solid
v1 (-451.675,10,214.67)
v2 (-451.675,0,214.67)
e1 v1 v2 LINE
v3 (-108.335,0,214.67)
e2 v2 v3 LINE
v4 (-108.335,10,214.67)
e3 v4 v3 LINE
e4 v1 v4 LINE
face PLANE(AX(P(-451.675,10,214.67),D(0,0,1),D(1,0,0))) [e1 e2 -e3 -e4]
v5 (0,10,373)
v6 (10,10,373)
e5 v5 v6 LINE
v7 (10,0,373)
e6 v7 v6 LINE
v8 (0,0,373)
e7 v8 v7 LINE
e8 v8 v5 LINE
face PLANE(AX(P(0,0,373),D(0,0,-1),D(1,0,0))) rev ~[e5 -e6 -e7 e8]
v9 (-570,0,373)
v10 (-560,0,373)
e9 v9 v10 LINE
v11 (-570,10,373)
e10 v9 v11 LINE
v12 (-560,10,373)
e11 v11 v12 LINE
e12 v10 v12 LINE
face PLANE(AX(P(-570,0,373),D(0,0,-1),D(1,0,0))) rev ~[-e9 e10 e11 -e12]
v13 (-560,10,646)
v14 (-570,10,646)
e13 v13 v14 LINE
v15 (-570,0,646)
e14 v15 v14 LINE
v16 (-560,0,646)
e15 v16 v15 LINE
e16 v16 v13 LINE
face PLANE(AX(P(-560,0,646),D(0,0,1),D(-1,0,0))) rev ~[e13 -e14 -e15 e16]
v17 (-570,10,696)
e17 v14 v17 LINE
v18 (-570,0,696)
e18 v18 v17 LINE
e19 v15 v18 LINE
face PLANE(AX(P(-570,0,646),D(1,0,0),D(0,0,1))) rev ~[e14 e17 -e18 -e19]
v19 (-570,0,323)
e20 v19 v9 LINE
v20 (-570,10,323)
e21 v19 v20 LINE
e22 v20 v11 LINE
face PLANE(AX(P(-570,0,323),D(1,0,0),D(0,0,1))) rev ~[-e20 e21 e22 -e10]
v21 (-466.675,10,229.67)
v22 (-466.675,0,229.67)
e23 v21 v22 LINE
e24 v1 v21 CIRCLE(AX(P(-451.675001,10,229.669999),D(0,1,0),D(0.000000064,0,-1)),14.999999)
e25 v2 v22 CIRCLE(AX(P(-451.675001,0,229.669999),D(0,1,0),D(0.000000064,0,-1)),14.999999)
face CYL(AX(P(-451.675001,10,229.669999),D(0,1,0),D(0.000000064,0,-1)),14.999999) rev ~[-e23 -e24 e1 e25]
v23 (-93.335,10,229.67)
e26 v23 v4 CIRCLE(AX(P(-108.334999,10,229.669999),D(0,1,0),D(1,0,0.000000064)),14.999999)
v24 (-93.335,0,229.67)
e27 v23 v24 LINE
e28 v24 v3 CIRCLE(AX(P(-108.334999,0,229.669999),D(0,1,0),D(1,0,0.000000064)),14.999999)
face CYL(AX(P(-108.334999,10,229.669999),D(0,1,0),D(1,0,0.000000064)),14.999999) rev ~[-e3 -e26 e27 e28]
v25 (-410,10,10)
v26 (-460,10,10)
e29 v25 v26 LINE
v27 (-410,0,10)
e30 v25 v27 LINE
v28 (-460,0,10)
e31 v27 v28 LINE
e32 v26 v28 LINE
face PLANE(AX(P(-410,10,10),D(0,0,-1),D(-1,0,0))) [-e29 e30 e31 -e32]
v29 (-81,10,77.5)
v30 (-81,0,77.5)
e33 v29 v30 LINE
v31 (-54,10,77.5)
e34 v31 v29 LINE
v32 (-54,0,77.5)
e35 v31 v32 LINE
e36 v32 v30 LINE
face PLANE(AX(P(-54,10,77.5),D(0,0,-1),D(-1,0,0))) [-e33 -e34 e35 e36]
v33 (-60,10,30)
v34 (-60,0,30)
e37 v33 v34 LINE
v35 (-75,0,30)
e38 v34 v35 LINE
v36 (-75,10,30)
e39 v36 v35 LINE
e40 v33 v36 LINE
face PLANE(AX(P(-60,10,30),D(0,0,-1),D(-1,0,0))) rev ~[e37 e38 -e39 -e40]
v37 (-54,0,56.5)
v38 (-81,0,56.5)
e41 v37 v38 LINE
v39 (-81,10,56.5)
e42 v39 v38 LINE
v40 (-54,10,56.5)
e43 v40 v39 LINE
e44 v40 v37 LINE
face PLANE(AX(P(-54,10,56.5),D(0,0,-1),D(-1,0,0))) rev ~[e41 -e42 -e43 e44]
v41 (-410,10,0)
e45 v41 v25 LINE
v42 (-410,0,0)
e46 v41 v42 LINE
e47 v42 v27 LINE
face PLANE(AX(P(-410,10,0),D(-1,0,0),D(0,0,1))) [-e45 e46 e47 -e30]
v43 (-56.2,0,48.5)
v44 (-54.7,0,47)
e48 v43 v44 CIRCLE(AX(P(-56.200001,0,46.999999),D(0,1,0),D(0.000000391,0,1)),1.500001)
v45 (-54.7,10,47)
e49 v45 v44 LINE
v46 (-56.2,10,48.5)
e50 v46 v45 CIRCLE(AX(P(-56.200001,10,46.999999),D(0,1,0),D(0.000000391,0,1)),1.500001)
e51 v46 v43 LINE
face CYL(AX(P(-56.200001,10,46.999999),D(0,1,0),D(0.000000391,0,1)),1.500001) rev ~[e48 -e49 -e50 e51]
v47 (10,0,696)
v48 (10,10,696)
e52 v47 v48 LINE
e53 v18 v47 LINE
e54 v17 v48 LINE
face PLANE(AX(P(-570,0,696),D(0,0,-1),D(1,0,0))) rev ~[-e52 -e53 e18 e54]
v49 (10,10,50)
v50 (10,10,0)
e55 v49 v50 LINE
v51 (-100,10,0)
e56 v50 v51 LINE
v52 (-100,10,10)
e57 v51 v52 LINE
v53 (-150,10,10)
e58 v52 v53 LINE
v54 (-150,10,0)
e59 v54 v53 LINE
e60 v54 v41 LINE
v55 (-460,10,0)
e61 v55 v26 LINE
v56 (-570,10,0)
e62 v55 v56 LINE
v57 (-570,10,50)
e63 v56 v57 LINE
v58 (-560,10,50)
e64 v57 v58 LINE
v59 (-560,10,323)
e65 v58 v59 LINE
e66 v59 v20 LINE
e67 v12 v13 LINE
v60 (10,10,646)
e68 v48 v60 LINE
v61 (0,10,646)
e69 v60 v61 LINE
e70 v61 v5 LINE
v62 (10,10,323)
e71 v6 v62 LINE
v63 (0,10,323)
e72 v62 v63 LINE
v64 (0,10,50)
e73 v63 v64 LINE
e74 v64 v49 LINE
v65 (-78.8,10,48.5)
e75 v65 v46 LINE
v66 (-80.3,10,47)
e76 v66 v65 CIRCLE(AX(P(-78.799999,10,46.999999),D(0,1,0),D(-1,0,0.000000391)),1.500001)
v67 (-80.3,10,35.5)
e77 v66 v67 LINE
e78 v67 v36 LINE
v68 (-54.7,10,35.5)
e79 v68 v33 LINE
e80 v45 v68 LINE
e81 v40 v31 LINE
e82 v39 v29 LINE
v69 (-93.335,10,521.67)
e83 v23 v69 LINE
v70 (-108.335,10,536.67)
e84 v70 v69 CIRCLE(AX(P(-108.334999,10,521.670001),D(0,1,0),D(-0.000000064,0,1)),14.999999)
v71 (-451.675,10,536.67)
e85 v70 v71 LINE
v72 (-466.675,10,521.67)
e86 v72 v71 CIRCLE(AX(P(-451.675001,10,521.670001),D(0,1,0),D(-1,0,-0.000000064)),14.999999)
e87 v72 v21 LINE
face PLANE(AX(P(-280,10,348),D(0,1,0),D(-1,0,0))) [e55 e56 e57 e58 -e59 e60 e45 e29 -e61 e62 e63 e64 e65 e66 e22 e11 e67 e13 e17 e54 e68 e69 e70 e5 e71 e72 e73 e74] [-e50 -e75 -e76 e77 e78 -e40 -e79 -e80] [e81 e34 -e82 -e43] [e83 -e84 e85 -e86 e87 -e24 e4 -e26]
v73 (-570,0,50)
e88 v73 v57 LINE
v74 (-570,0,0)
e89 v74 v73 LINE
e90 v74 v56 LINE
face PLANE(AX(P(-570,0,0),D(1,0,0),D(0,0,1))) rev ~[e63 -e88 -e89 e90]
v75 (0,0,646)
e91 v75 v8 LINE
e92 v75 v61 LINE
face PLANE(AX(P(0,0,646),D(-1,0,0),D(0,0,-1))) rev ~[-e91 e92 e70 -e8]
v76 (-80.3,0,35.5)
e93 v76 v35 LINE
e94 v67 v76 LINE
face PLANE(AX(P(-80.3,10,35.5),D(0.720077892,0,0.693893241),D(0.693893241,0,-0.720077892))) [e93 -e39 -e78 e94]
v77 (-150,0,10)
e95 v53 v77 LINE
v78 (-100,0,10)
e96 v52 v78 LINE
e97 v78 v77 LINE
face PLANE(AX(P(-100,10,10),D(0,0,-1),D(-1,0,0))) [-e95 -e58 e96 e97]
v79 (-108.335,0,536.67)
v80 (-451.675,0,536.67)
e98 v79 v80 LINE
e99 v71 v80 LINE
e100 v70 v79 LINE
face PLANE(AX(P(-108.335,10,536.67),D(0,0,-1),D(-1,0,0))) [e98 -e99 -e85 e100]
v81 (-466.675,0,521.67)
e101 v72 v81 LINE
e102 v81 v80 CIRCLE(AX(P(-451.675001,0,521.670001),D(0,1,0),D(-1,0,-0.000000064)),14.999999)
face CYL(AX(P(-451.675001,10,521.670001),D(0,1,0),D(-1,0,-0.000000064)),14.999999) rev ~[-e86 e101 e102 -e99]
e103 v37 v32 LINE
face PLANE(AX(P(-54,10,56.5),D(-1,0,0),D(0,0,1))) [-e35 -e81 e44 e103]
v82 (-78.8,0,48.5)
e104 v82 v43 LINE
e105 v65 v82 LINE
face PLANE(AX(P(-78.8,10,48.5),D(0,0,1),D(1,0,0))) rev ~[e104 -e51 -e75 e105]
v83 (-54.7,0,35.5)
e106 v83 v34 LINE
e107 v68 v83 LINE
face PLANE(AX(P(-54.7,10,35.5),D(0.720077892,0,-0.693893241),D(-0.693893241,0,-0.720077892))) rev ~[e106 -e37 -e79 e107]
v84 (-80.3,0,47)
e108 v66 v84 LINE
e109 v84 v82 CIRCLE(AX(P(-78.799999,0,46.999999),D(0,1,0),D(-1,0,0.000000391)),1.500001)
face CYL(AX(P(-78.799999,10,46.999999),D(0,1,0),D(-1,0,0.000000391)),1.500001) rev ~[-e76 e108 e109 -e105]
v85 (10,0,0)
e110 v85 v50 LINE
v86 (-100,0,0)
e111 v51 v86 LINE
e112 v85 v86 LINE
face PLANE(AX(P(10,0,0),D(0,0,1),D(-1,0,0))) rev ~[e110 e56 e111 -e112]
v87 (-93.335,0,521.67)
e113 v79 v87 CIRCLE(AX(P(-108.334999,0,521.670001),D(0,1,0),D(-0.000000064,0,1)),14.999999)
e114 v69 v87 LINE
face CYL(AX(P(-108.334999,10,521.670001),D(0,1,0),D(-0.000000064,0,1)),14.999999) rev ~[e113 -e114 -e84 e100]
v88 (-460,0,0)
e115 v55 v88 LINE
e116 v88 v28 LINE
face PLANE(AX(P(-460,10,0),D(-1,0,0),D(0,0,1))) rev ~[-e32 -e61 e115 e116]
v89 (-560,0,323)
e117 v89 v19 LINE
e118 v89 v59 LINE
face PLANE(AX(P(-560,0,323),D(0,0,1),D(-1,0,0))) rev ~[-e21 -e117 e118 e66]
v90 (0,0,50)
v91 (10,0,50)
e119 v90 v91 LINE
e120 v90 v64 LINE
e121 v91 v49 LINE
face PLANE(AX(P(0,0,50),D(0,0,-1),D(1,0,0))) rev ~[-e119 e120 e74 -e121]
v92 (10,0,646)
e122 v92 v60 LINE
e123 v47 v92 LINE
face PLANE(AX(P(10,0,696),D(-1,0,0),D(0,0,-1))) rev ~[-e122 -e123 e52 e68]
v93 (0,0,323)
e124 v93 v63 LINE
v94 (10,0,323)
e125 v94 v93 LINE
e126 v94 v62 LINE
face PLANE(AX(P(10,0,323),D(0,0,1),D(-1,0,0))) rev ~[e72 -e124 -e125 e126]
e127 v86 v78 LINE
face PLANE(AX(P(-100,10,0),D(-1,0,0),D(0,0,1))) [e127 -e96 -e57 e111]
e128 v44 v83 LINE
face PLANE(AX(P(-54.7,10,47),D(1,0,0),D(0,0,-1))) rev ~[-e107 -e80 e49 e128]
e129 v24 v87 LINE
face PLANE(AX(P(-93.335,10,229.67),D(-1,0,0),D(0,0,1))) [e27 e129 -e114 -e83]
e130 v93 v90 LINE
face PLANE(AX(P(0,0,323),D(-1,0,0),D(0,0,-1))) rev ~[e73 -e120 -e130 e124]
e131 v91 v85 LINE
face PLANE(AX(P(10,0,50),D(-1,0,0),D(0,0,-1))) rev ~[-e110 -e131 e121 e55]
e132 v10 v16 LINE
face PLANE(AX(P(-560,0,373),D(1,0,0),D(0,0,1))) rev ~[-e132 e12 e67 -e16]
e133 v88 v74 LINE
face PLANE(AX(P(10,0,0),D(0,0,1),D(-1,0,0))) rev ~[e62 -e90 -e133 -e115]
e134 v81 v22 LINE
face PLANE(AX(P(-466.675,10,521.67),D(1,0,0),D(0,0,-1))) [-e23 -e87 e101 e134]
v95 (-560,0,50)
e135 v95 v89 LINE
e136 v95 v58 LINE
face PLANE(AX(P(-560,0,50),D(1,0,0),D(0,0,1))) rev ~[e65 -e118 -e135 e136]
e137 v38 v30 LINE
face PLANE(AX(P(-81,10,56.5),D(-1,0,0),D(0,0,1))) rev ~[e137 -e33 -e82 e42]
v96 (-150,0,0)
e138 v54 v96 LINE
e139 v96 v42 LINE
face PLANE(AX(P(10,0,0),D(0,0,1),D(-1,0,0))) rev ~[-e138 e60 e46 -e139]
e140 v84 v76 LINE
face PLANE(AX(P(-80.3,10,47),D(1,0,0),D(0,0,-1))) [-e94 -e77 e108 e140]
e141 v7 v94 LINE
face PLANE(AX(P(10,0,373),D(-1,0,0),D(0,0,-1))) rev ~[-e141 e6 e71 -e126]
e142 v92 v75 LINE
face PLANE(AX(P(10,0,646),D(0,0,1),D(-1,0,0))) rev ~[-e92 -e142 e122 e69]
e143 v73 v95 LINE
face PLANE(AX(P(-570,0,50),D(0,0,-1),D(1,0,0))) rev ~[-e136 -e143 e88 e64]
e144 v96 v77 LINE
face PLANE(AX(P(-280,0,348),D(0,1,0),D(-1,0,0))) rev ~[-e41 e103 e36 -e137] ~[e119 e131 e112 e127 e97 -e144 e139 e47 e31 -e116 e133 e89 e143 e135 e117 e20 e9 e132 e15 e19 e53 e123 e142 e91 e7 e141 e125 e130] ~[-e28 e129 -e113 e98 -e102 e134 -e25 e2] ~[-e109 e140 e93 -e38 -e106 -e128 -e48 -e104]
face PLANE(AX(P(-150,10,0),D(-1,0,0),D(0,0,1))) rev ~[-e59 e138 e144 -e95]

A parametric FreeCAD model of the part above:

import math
import FreeCAD as App
import Part
import Sketcher

V = App.Vector
Q = App.Units.Quantity

doc = App.newDocument("Part")
body = doc.addObject("PartDesign::Body", "Body")

sketch1 = body.newObject("Sketcher::SketchObject", "Sketch")
sketch1.AttachmentSupport = (doc.getObject("XZ_Plane"), [""])
sketch1.MapMode = "FlatFace"
sketch1.addGeometry([
    Part.LineSegment(V(-570, 0, 0), V(-570, 50, 0)),
    Part.LineSegment(V(-570, 50, 0), V(-560, 50, 0)),
    Part.LineSegment(V(-560, 50, 0), V(-560, 323, 0)),
    Part.LineSegment(V(-560, 323, 0), V(-570, 323, 0)),
    Part.LineSegment(V(-570, 323, 0), V(-570, 373, 0)),
    Part.LineSegment(V(-570, 373, 0), V(-560, 373, 0)),
    Part.LineSegment(V(-560, 373, 0), V(-560, 646, 0)),
    Part.LineSegment(V(-560, 646, 0), V(-570, 646, 0)),
    Part.LineSegment(V(-570, 646, 0), V(-570, 696, 0)),
    Part.LineSegment(V(-570, 696, 0), V(10, 696, 0)),
    Part.LineSegment(V(10, 696, 0), V(10, 646, 0)),
    Part.LineSegment(V(10, 646, 0), V(0, 646, 0)),
    Part.LineSegment(V(0, 646, 0), V(0, 373, 0)),
    Part.LineSegment(V(0, 373, 0), V(10, 373, 0)),
    Part.LineSegment(V(10, 373, 0), V(10, 323, 0)),
    Part.LineSegment(V(10, 323, 0), V(0, 323, 0)),
    Part.LineSegment(V(0, 323, 0), V(0, 50, 0)),
    Part.LineSegment(V(0, 50, 0), V(10, 50, 0)),
    Part.LineSegment(V(10, 50, 0), V(10, 0, 0)),
    Part.LineSegment(V(10, 0, 0), V(-570, 0, 0)),
], False)
sketch1.addConstraint([
    Sketcher.Constraint("Coincident", 0, 2, 1, 1),
    Sketcher.Constraint("Coincident", 1, 2, 2, 1),
    Sketcher.Constraint("Coincident", 2, 2, 3, 1),
    Sketcher.Constraint("Coincident", 3, 2, 4, 1),
    Sketcher.Constraint("Coincident", 4, 2, 5, 1),
    Sketcher.Constraint("Coincident", 5, 2, 6, 1),
    Sketcher.Constraint("Coincident", 6, 2, 7, 1),
    Sketcher.Constraint("Coincident", 7, 2, 8, 1),
    Sketcher.Constraint("Coincident", 8, 2, 9, 1),
    Sketcher.Constraint("Coincident", 9, 2, 10, 1),
    Sketcher.Constraint("Coincident", 10, 2, 11, 1),
    Sketcher.Constraint("Coincident", 11, 2, 12, 1),
    Sketcher.Constraint("Coincident", 12, 2, 13, 1),
    Sketcher.Constraint("Coincident", 13, 2, 14, 1),
    Sketcher.Constraint("Coincident", 14, 2, 15, 1),
    Sketcher.Constraint("Coincident", 15, 2, 16, 1),
    Sketcher.Constraint("Coincident", 16, 2, 17, 1),
    Sketcher.Constraint("Coincident", 17, 2, 18, 1),
    Sketcher.Constraint("Coincident", 18, 2, 19, 1),
    Sketcher.Constraint("Coincident", 19, 2, 0, 1),
    Sketcher.Constraint("Vertical", 0),
    Sketcher.Constraint("Horizontal", 1),
    Sketcher.Constraint("Vertical", 2),
    Sketcher.Constraint("Horizontal", 3),
    Sketcher.Constraint("Vertical", 4),
    Sketcher.Constraint("Horizontal", 5),
    Sketcher.Constraint("Vertical", 6),
    Sketcher.Constraint("Horizontal", 7),
    Sketcher.Constraint("Vertical", 8),
    Sketcher.Constraint("Horizontal", 9),
    Sketcher.Constraint("Vertical", 10),
    Sketcher.Constraint("Horizontal", 11),
    Sketcher.Constraint("Vertical", 12),
    Sketcher.Constraint("Horizontal", 13),
    Sketcher.Constraint("Vertical", 14),
    Sketcher.Constraint("Horizontal", 15),
    Sketcher.Constraint("Vertical", 16),
    Sketcher.Constraint("Horizontal", 17),
    Sketcher.Constraint("Vertical", 18),
    Sketcher.Constraint("Horizontal", 19),
    Sketcher.Constraint("PointOnObject", 11, 2, -2),
    Sketcher.Constraint("PointOnObject", 15, 2, -2),
    Sketcher.Constraint("PointOnObject", 18, 2, -1),
    Sketcher.Constraint("Horizontal", 7, 2, 10, 2),
    Sketcher.Constraint("Horizontal", 5, 2, 12, 2),
    Sketcher.Constraint("Horizontal", 3, 2, 14, 2),
    Sketcher.Constraint("Horizontal", 1, 2, 16, 2),
    Sketcher.Constraint("Vertical", 0, 2, 3, 2),
    Sketcher.Constraint("Vertical", 2, 2, 5, 2),
    Sketcher.Constraint("Vertical", 4, 2, 7, 2),
    Sketcher.Constraint("Vertical", 10, 2, 13, 2),
    Sketcher.Constraint("Vertical", 14, 2, 17, 2),
    Sketcher.Constraint("Equal", 7, 11),
    Sketcher.Constraint("Equal", 0, 4),
    Sketcher.Constraint("Equal", 2, 6),
    Sketcher.Constraint("Equal", 4, 8),
    Sketcher.Constraint("DistanceX", 1, 1, 1, 2, Q("10 mm")),
    Sketcher.Constraint("DistanceX", 9, 1, 9, 2, Q("580 mm")),
    Sketcher.Constraint("DistanceY", 0, 1, 0, 2, Q("50 mm")),
    Sketcher.Constraint("DistanceY", 2, 1, 2, 2, Q("273 mm")),
])
pad1 = body.newObject("PartDesign::Pad", "Pad")
pad1.Profile = sketch1
pad1.Length = 10
pad1.Reversed = True

sketch2 = body.newObject("Sketcher::SketchObject", "Sketch001")
sketch2.AttachmentSupport = (doc.getObject("XZ_Plane"), [""])
sketch2.MapMode = "FlatFace"
sketch2.AttachmentOffset = App.Placement(V(0, 0, -10), App.Rotation())
sketch2.addGeometry([
    Part.LineSegment(V(-451.675, 536.67, 0), V(-108.335, 536.67, 0)),
    Part.ArcOfCircle(Part.Circle(V(-108.334999, 521.670001, 0), V(0, 0, 1), 14.999999), math.radians(-0.000004), math.radians(90.000004)),
    Part.LineSegment(V(-93.335, 521.67, 0), V(-93.335, 229.67, 0)),
    Part.ArcOfCircle(Part.Circle(V(-108.334999, 229.669999, 0), V(0, 0, 1), 14.999999), math.radians(-90.000004), math.radians(0.000004)),
    Part.LineSegment(V(-108.335, 214.67, 0), V(-451.675, 214.67, 0)),
    Part.ArcOfCircle(Part.Circle(V(-451.675001, 229.669999, 0), V(0, 0, 1), 14.999999), math.radians(179.999996), math.radians(270.000004)),
    Part.LineSegment(V(-466.675, 229.67, 0), V(-466.675, 521.67, 0)),
    Part.ArcOfCircle(Part.Circle(V(-451.675001, 521.670001, 0), V(0, 0, 1), 14.999999), math.radians(89.999996), math.radians(180.000004)),
    Part.LineSegment(V(-60, 30, 0), V(-75, 30, 0)),
    Part.LineSegment(V(-75, 30, 0), V(-80.3, 35.5, 0)),
    Part.LineSegment(V(-80.3, 35.5, 0), V(-80.3, 47, 0)),
    Part.ArcOfCircle(Part.Circle(V(-78.799999, 46.999999, 0), V(0, 0, 1), 1.500001), math.radians(90.000022), math.radians(179.999978)),
    Part.LineSegment(V(-78.8, 48.5, 0), V(-56.2, 48.5, 0)),
    Part.ArcOfCircle(Part.Circle(V(-56.200001, 46.999999, 0), V(0, 0, 1), 1.500001), math.radians(0.000022), math.radians(89.999978)),
    Part.LineSegment(V(-54.7, 47, 0), V(-54.7, 35.5, 0)),
    Part.LineSegment(V(-54.7, 35.5, 0), V(-60, 30, 0)),
    Part.LineSegment(V(-54, 77.5, 0), V(-54, 56.5, 0)),
    Part.LineSegment(V(-54, 56.5, 0), V(-81, 56.5, 0)),
    Part.LineSegment(V(-81, 56.5, 0), V(-81, 77.5, 0)),
    Part.LineSegment(V(-81, 77.5, 0), V(-54, 77.5, 0)),
    Part.LineSegment(V(-100, 10, 0), V(-100, 0, 0)),
    Part.LineSegment(V(-100, 0, 0), V(-150, 0, 0)),
    Part.LineSegment(V(-150, 0, 0), V(-150, 10, 0)),
    Part.LineSegment(V(-150, 10, 0), V(-100, 10, 0)),
    Part.LineSegment(V(-410, 10, 0), V(-410, 0, 0)),
    Part.LineSegment(V(-410, 0, 0), V(-460, 0, 0)),
    Part.LineSegment(V(-460, 0, 0), V(-460, 10, 0)),
    Part.LineSegment(V(-460, 10, 0), V(-410, 10, 0)),
], False)
sketch2.addConstraint([
    Sketcher.Constraint("Tangent", 0, 2, 1, 2),
    Sketcher.Constraint("Tangent", 1, 1, 2, 1),
    Sketcher.Constraint("Tangent", 2, 2, 3, 2),
    Sketcher.Constraint("Tangent", 3, 1, 4, 1),
    Sketcher.Constraint("Tangent", 4, 2, 5, 2),
    Sketcher.Constraint("Tangent", 5, 1, 6, 1),
    Sketcher.Constraint("Tangent", 6, 2, 7, 2),
    Sketcher.Constraint("Tangent", 7, 1, 0, 1),
    Sketcher.Constraint("Coincident", 8, 2, 9, 1),
    Sketcher.Constraint("Coincident", 9, 2, 10, 1),
    Sketcher.Constraint("Tangent", 10, 2, 11, 2),
    Sketcher.Constraint("Tangent", 11, 1, 12, 1),
    Sketcher.Constraint("Tangent", 12, 2, 13, 2),
    Sketcher.Constraint("Tangent", 13, 1, 14, 1),
    Sketcher.Constraint("Coincident", 14, 2, 15, 1),
    Sketcher.Constraint("Coincident", 15, 2, 8, 1),
    Sketcher.Constraint("Coincident", 16, 2, 17, 1),
    Sketcher.Constraint("Coincident", 17, 2, 18, 1),
    Sketcher.Constraint("Coincident", 18, 2, 19, 1),
    Sketcher.Constraint("Coincident", 19, 2, 16, 1),
    Sketcher.Constraint("Coincident", 20, 2, 21, 1),
    Sketcher.Constraint("Coincident", 21, 2, 22, 1),
    Sketcher.Constraint("Coincident", 22, 2, 23, 1),
    Sketcher.Constraint("Coincident", 23, 2, 20, 1),
    Sketcher.Constraint("Coincident", 24, 2, 25, 1),
    Sketcher.Constraint("Coincident", 25, 2, 26, 1),
    Sketcher.Constraint("Coincident", 26, 2, 27, 1),
    Sketcher.Constraint("Coincident", 27, 2, 24, 1),
    Sketcher.Constraint("Horizontal", 0),
    Sketcher.Constraint("Vertical", 2),
    Sketcher.Constraint("Horizontal", 4),
    Sketcher.Constraint("Vertical", 6),
    Sketcher.Constraint("Horizontal", 8),
    Sketcher.Constraint("Vertical", 10),
    Sketcher.Constraint("Horizontal", 12),
    Sketcher.Constraint("Vertical", 14),
    Sketcher.Constraint("Vertical", 16),
    Sketcher.Constraint("Horizontal", 17),
    Sketcher.Constraint("Vertical", 18),
    Sketcher.Constraint("Horizontal", 19),
    Sketcher.Constraint("Vertical", 20),
    Sketcher.Constraint("Horizontal", 21),
    Sketcher.Constraint("Vertical", 22),
    Sketcher.Constraint("Horizontal", 23),
    Sketcher.Constraint("Vertical", 24),
    Sketcher.Constraint("Horizontal", 25),
    Sketcher.Constraint("Vertical", 26),
    Sketcher.Constraint("Horizontal", 27),
    Sketcher.Constraint("Equal", 1, 3),
    Sketcher.Constraint("Equal", 3, 5),
    Sketcher.Constraint("Equal", 5, 7),
    Sketcher.Constraint("Equal", 11, 13),
    Sketcher.Constraint("PointOnObject", 20, 2, -1),
    Sketcher.Constraint("PointOnObject", 24, 2, -1),
    Sketcher.Constraint("Horizontal", 9, 2, 14, 2),
    Sketcher.Constraint("Horizontal", 23, 2, 26, 2),
    Sketcher.Constraint("Equal", 23, 25),
    Sketcher.Constraint("Equal", 9, 15),
    Sketcher.Constraint("Radius", 1, Q("14.999999 mm")),
    Sketcher.Constraint("Radius", 11, Q("1.500001 mm")),
    Sketcher.Constraint("DistanceX", 8, 2, 8, 1, Q("15 mm")),
    Sketcher.Constraint("DistanceX", 17, 2, 17, 1, Q("27 mm")),
    Sketcher.Constraint("DistanceX", 21, 2, 21, 1, Q("50 mm")),
    Sketcher.Constraint("DistanceY", 2, 2, 2, 1, Q("292 mm")),
    Sketcher.Constraint("DistanceY", 16, 2, 16, 1, Q("21 mm")),
    Sketcher.Constraint("DistanceY", 20, 2, 20, 1, Q("10 mm")),
    Sketcher.Constraint("DistanceX", 12, 1, 12, 2, Q("22.6 mm")),
    Sketcher.Constraint("DistanceY", 10, 1, 10, 2, Q("11.5 mm")),
    Sketcher.Constraint("DistanceY", -1, 1, 11, 3, Q("46.999999 mm")),
    Sketcher.Constraint("DistanceX", 8, 2, -1, 1, Q("75 mm")),
    Sketcher.Constraint("DistanceY", -1, 1, 8, 2, Q("30 mm")),
    Sketcher.Constraint("DistanceX", 16, 2, -1, 1, Q("54 mm")),
    Sketcher.Constraint("DistanceX", 20, 2, -1, 1, Q("100 mm")),
    Sketcher.Constraint("DistanceX", 24, 2, -1, 1, Q("410 mm")),
    Sketcher.Constraint("DistanceY", 12, 2, 16, 2, Q("8 mm")),
    Sketcher.Constraint("DistanceX", 0, 1, 0, 2, Q("343.34 mm")),
    Sketcher.Constraint("DistanceY", -1, 1, 1, 3, Q("521.670001 mm")),
    Sketcher.Constraint("DistanceX", 1, 3, -1, 1, Q("108.334999 mm")),
])
pocket1 = body.newObject("PartDesign::Pocket", "Pocket")
pocket1.Profile = sketch2
pocket1.Type = "ThroughAll"
pocket1.Reversed = True

doc.recompute()
